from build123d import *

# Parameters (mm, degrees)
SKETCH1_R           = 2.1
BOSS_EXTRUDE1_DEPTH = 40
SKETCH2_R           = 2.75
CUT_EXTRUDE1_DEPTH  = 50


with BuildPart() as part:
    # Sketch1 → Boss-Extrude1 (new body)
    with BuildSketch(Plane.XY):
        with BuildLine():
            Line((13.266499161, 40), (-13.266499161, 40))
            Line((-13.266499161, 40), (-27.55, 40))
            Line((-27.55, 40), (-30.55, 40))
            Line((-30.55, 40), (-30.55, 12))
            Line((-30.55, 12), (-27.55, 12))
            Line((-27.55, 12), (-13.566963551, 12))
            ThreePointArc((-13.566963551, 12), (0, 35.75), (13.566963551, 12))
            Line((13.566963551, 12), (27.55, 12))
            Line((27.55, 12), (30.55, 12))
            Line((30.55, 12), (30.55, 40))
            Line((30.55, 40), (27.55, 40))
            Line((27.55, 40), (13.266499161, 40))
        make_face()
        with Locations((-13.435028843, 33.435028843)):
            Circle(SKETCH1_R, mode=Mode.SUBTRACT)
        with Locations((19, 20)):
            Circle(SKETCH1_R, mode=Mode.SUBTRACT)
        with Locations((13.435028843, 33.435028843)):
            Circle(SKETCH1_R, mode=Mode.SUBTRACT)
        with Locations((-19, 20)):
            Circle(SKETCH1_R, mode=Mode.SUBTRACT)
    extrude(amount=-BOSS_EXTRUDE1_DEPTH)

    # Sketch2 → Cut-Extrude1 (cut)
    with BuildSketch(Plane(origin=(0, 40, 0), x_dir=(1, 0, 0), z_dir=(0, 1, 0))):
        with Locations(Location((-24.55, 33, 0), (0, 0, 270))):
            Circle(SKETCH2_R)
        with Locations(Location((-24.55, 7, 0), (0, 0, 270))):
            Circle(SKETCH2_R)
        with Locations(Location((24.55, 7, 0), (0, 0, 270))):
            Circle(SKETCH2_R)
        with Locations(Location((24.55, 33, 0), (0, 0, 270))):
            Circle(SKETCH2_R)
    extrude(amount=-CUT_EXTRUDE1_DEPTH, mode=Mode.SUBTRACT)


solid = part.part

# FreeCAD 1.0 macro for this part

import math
import FreeCAD as App
import Part
import Sketcher

V = App.Vector

doc = App.newDocument("Part")
body = doc.addObject("PartDesign::Body", "Body")

sketch1 = body.newObject("Sketcher::SketchObject", "Sketch")
sketch1.AttachmentSupport = (doc.getObject("XY_Plane"), [""])
sketch1.MapMode = "FlatFace"
sketch1.addGeometry(Part.LineSegment(V(-30.6, 40, 0), V(-30.6, 12, 0)), False)
sketch1.addGeometry(Part.LineSegment(V(-30.6, 12, 0), V(-13.6, 12, 0)), False)
sketch1.addGeometry(Part.ArcOfCircle(Part.Circle(V(0, 20, 0), V(0, 0, 1), 15.8), math.radians(-31), math.radians(211)), False)
sketch1.addGeometry(Part.LineSegment(V(13.6, 12, 0), V(30.6, 12, 0)), False)
sketch1.addGeometry(Part.LineSegment(V(30.6, 12, 0), V(30.6, 40, 0)), False)
sketch1.addGeometry(Part.LineSegment(V(30.6, 40, 0), V(-30.6, 40, 0)), False)
sketch1.addGeometry(Part.Circle(V(-19, 20, 0), V(0, 0, 1), 2.1), False)
sketch1.addGeometry(Part.Circle(V(19, 20, 0), V(0, 0, 1), 2.1), False)
sketch1.addGeometry(Part.Circle(V(-13.4, 33.4, 0), V(0, 0, 1), 2.1), False)
sketch1.addGeometry(Part.Circle(V(13.4, 33.4, 0), V(0, 0, 1), 2.1), False)
sketch1.addConstraint(Sketcher.Constraint("Coincident", 0, 2, 1, 1))
sketch1.addConstraint(Sketcher.Constraint("Coincident", 1, 2, 2, 2))
sketch1.addConstraint(Sketcher.Constraint("Coincident", 2, 1, 3, 1))
sketch1.addConstraint(Sketcher.Constraint("Coincident", 3, 2, 4, 1))
sketch1.addConstraint(Sketcher.Constraint("Coincident", 4, 2, 5, 1))
sketch1.addConstraint(Sketcher.Constraint("Coincident", 5, 2, 0, 1))
sketch1.addConstraint(Sketcher.Constraint("Vertical", 0))
sketch1.addConstraint(Sketcher.Constraint("Horizontal", 1))
sketch1.addConstraint(Sketcher.Constraint("Horizontal", 3))
sketch1.addConstraint(Sketcher.Constraint("Vertical", 4))
sketch1.addConstraint(Sketcher.Constraint("Horizontal", 5))
sketch1.addConstraint(Sketcher.Constraint("Equal", 6, 7))
sketch1.addConstraint(Sketcher.Constraint("Equal", 7, 8))
sketch1.addConstraint(Sketcher.Constraint("Equal", 8, 9))
sketch1.addConstraint(Sketcher.Constraint("Symmetric", 6, 3, 7, 3, -2))
sketch1.addConstraint(Sketcher.Constraint("Symmetric", 8, 3, 9, 3, -2))
sketch1.addConstraint(Sketcher.Constraint("Symmetric", 1, 2, 2, 1, -2))
sketch1.addConstraint(Sketcher.Constraint("Horizontal", 2, 3, 6, 3))
sketch1.addConstraint(Sketcher.Constraint("Equal", 1, 3))
sketch1.addConstraint(Sketcher.Constraint("Diameter", 6, 4.2))
sketch1.addConstraint(Sketcher.Constraint("DistanceY", 0, 2, 0, 1, 28.0))
sketch1.addConstraint(Sketcher.Constraint("Radius", 2, 15.75))
sketch1.addConstraint(Sketcher.Constraint("DistanceX", 5, 2, 5, 1, 61.1))
sketch1.addConstraint(Sketcher.Constraint("DistanceY", -1, 1, 2, 3, 20.0))
sketch1.addConstraint(Sketcher.Constraint("DistanceX", 6, 3, -1, 1, 19.0))
sketch1.addConstraint(Sketcher.Constraint("DistanceY", -1, 1, 0, 2, 12.0))
sketch1.addConstraint(Sketcher.Constraint("DistanceX", 8, 3, -1, 1, 13.435029))
sketch1.addConstraint(Sketcher.Constraint("DistanceY", -1, 1, 8, 3, 33.435029))
pad1 = body.newObject("PartDesign::Pad", "Pad")
pad1.Profile = sketch1
pad1.Length = 40
pad1.Reversed = True

sketch2 = body.newObject("Sketcher::SketchObject", "Sketch001")
sketch2.AttachmentSupport = (doc.getObject("XZ_Plane"), [""])
sketch2.MapMode = "FlatFace"
sketch2.AttachmentOffset = App.Placement(V(0, 0, -40), App.Rotation())
sketch2.addGeometry(Part.Circle(V(-24.6, -33, 0), V(0, 0, 1), 2.8), False)
sketch2.addGeometry(Part.Circle(V(-24.6, -7, 0), V(0, 0, 1), 2.8), False)
sketch2.addGeometry(Part.Circle(V(24.6, -7, 0), V(0, 0, 1), 2.8), False)
sketch2.addGeometry(Part.Circle(V(24.6, -33, 0), V(0, 0, 1), 2.8), False)
sketch2.addConstraint(Sketcher.Constraint("Equal", 0, 1))
sketch2.addConstraint(Sketcher.Constraint("Equal", 1, 2))
sketch2.addConstraint(Sketcher.Constraint("Equal", 2, 3))
sketch2.addConstraint(Sketcher.Constraint("Symmetric", 1, 3, 2, 3, -2))
sketch2.addConstraint(Sketcher.Constraint("Symmetric", 0, 3, 3, 3, -2))
sketch2.addConstraint(Sketcher.Constraint("Vertical", 0, 3, 1, 3))
sketch2.addConstraint(Sketcher.Constraint("Diameter", 0, 5.5))
sketch2.addConstraint(Sketcher.Constraint("DistanceY", 0, 3, -1, 1, 33.0))
sketch2.addConstraint(Sketcher.Constraint("DistanceY", 1, 3, -1, 1, 7.0))
sketch2.addConstraint(Sketcher.Constraint("DistanceX", 1, 3, 2, 3, 49.1))
pocket1 = body.newObject("PartDesign::Pocket", "Pocket")
pocket1.Profile = sketch2
pocket1.Length = 50
pocket1.Reversed = True

doc.recompute()
